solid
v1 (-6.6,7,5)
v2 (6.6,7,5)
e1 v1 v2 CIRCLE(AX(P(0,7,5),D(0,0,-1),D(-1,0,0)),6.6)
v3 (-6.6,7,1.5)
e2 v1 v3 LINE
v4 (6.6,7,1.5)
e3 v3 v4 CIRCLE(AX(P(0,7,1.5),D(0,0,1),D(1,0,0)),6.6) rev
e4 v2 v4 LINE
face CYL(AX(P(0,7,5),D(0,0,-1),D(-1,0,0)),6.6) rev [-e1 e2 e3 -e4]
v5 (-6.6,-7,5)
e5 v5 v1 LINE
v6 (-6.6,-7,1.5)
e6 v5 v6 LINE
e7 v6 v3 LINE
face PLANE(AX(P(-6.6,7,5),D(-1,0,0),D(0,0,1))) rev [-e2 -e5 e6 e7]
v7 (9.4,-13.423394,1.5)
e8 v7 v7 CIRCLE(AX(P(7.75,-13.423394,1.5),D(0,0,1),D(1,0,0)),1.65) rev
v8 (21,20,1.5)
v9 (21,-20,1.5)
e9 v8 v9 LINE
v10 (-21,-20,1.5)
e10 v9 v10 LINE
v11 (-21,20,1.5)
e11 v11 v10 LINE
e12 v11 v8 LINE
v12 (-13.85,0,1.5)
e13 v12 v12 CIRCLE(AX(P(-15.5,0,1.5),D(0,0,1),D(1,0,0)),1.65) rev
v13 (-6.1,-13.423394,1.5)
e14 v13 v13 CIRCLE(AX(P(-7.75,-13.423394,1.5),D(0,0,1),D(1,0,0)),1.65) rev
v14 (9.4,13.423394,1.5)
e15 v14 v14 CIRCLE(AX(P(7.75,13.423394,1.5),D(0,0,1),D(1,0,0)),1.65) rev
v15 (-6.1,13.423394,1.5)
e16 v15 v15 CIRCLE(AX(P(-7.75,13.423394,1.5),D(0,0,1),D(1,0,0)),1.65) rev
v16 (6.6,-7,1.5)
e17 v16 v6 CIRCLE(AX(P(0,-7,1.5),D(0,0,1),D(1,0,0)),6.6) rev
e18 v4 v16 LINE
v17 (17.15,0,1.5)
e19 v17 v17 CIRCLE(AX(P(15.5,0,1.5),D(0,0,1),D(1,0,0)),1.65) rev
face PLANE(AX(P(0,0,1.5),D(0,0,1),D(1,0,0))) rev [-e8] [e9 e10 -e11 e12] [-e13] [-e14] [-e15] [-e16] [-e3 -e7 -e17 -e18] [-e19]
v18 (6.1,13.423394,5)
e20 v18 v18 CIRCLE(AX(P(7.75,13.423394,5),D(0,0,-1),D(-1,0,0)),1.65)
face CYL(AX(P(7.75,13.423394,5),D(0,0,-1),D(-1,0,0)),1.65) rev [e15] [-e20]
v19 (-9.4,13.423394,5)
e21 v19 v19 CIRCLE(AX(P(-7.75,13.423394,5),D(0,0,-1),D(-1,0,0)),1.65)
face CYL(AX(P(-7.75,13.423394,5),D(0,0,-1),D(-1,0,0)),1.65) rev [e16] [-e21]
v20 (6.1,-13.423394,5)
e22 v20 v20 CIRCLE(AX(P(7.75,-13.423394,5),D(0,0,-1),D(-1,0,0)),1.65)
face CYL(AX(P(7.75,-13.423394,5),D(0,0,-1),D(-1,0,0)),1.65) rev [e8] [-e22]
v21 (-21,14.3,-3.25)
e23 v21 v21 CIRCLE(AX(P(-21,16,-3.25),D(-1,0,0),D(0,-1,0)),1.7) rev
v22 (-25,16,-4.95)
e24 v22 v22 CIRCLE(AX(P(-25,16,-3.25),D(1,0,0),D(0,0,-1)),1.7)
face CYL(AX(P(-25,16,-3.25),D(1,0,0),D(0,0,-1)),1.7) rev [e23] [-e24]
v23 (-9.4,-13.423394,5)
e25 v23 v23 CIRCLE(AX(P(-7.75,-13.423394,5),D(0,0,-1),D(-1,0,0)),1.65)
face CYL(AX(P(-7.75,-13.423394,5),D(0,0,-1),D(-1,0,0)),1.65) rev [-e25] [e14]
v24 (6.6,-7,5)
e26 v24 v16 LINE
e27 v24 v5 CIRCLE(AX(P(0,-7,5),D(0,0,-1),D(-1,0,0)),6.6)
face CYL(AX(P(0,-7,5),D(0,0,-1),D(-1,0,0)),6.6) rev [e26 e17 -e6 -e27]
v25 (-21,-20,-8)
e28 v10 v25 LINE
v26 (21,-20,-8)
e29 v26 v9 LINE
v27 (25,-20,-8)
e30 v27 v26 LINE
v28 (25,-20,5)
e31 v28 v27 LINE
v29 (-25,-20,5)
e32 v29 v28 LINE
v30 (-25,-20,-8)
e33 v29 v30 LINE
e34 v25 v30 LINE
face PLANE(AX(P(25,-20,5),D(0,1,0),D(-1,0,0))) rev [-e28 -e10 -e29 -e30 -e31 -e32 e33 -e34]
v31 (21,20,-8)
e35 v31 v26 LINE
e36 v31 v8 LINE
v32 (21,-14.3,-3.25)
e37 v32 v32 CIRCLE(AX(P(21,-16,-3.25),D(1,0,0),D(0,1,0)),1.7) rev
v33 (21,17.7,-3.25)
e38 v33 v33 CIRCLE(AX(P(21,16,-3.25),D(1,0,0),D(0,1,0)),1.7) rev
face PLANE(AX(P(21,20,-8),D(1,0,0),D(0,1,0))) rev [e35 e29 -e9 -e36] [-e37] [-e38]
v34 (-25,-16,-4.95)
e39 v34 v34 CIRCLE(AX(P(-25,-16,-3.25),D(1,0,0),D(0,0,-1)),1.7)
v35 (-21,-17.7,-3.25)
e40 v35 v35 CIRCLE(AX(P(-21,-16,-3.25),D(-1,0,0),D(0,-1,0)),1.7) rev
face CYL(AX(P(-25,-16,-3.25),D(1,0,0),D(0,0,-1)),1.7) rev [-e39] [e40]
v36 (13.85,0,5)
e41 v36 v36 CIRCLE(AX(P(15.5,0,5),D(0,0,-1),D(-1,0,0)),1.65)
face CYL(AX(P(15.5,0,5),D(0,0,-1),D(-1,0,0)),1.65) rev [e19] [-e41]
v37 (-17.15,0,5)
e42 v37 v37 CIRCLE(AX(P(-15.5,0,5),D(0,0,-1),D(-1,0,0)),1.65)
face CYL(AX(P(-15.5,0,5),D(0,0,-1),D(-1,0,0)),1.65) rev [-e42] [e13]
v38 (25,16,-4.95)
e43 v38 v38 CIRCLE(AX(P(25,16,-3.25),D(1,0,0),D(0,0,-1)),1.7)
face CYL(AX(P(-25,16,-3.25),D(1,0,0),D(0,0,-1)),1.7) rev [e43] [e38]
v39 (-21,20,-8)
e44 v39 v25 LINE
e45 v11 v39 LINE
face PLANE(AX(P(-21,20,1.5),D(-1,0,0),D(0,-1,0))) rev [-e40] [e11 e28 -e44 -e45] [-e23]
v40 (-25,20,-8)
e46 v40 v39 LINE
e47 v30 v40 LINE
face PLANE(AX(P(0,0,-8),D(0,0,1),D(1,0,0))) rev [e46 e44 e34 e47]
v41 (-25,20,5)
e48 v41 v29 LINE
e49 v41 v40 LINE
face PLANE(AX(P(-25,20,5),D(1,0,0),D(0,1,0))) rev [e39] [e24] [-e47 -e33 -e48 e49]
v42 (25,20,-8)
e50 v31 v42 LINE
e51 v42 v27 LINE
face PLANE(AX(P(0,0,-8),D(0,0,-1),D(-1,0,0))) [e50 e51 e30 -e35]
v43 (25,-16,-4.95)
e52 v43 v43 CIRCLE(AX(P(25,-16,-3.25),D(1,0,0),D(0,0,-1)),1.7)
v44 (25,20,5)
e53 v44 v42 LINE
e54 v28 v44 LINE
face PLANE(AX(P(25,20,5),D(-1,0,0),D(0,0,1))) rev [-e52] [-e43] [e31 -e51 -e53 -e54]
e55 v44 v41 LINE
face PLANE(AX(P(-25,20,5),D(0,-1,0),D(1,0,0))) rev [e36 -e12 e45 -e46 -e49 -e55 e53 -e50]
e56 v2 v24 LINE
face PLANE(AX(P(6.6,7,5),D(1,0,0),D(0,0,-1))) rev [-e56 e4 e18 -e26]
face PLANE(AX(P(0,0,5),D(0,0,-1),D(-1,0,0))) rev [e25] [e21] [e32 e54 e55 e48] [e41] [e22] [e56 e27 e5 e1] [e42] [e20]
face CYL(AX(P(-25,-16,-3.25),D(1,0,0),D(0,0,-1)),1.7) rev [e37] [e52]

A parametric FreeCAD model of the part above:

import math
import FreeCAD as App
import Part
import Sketcher
from FreeCAD import Vector
Q = App.Units.Quantity

doc = App.newDocument("Part")
body = doc.addObject("PartDesign::Body", "Body")

sketch1 = body.newObject("Sketcher::SketchObject", "Sketch")
sketch1.AttachmentSupport = (doc.getObject("XY_Plane"), [""])
sketch1.MapMode = "FlatFace"
sketch1.addGeometry([
    Part.LineSegment(Vector(-25, 20, 0), Vector(-25, -20, 0)),
    Part.LineSegment(Vector(-25, -20, 0), Vector(25, -20, 0)),
    Part.LineSegment(Vector(25, -20, 0), Vector(25, 20, 0)),
    Part.LineSegment(Vector(25, 20, 0), Vector(-25, 20, 0)),
], False)
sketch1.addConstraint([
    Sketcher.Constraint("Coincident", 0, 2, 1, 1),
    Sketcher.Constraint("Coincident", 1, 2, 2, 1),
    Sketcher.Constraint("Coincident", 2, 2, 3, 1),
    Sketcher.Constraint("Coincident", 3, 2, 0, 1),
    Sketcher.Constraint("Vertical", 0),
    Sketcher.Constraint("Horizontal", 1),
    Sketcher.Constraint("Vertical", 2),
    Sketcher.Constraint("Horizontal", 3),
    Sketcher.Constraint("Symmetric", 0, 2, 2, 2, -1, 1),
    Sketcher.Constraint("DistanceX", 1, 1, 1, 2, Q("50 mm")),
    Sketcher.Constraint("DistanceY", 0, 2, 0, 1, Q("40 mm")),
])
pad1 = body.newObject("PartDesign::Pad", "Pad")
pad1.Profile = sketch1
pad1.Length = 5

sketch2 = body.newObject("Sketcher::SketchObject", "Sketch001")
sketch2.AttachmentSupport = (doc.getObject("XY_Plane"), [""])
sketch2.MapMode = "FlatFace"
sketch2.addGeometry([
    Part.LineSegment(Vector(25, 20, 0), Vector(25, -20, 0)),
    Part.LineSegment(Vector(25, -20, 0), Vector(19, -20, 0)),
    Part.LineSegment(Vector(19, -20, 0), Vector(19, 20, 0)),
    Part.LineSegment(Vector(19, 20, 0), Vector(25, 20, 0)),
    Part.LineSegment(Vector(-19, 20, 0), Vector(-19, -20, 0)),
    Part.LineSegment(Vector(-19, -20, 0), Vector(-25, -20, 0)),
    Part.LineSegment(Vector(-25, -20, 0), Vector(-25, 20, 0)),
    Part.LineSegment(Vector(-25, 20, 0), Vector(-19, 20, 0)),
], False)
sketch2.addConstraint([
    Sketcher.Constraint("Coincident", 0, 2, 1, 1),
    Sketcher.Constraint("Coincident", 1, 2, 2, 1),
    Sketcher.Constraint("Coincident", 2, 2, 3, 1),
    Sketcher.Constraint("Coincident", 3, 2, 0, 1),
    Sketcher.Constraint("Coincident", 4, 2, 5, 1),
    Sketcher.Constraint("Coincident", 5, 2, 6, 1),
    Sketcher.Constraint("Coincident", 6, 2, 7, 1),
    Sketcher.Constraint("Coincident", 7, 2, 4, 1),
    Sketcher.Constraint("Vertical", 0),
    Sketcher.Constraint("Horizontal", 1),
    Sketcher.Constraint("Vertical", 2),
    Sketcher.Constraint("Horizontal", 3),
    Sketcher.Constraint("Vertical", 4),
    Sketcher.Constraint("Horizontal", 5),
    Sketcher.Constraint("Vertical", 6),
    Sketcher.Constraint("Horizontal", 7),
    Sketcher.Constraint("Symmetric", 2, 2, 4, 2, -1, 1),
    Sketcher.Constraint("Symmetric", 0, 2, 6, 2, -1, 1),
    Sketcher.Constraint("Horizontal", 1, 2, 4, 2),
    Sketcher.Constraint("DistanceX", 1, 2, 1, 1, Q("6 mm")),
    Sketcher.Constraint("DistanceY", 0, 2, 0, 1, Q("40 mm")),
    Sketcher.Constraint("DistanceX", -1, 1, 0, 2, Q("25 mm")),
])
pad2 = body.newObject("PartDesign::Pad", "Pad001")
pad2.Profile = sketch2
pad2.Length = 8
pad2.Reversed = True

sketch3 = body.newObject("Sketcher::SketchObject", "Sketch002")
sketch3.AttachmentSupport = (doc.getObject("XY_Plane"), [""])
sketch3.MapMode = "FlatFace"
sketch3.addGeometry([
    Part.Circle(Vector(15.5, 0, 0), Vector(0, 0, 1), 1.65),
    Part.Circle(Vector(7.75, 13.423394, 0), Vector(0, 0, 1), 1.65),
    Part.Circle(Vector(-7.75, 13.423394, 0), Vector(0, 0, 1), 1.65),
    Part.Circle(Vector(-15.5, 0, 0), Vector(0, 0, 1), 1.65),
    Part.Circle(Vector(-7.75, -13.423394, 0), Vector(0, 0, 1), 1.65),
    Part.Circle(Vector(7.75, -13.423394, 0), Vector(0, 0, 1), 1.65),
    Part.LineSegment(Vector(6.6, 7, 0), Vector(6.6, -7, 0)),
    Part.ArcOfCircle(Part.Circle(Vector(0, -7, 0), Vector(0, 0, 1), 6.6), math.radians(180), math.radians(360)),
    Part.LineSegment(Vector(-6.6, -7, 0), Vector(-6.6, 7, 0)),
    Part.ArcOfCircle(Part.Circle(Vector(0, 7, 0), Vector(0, 0, 1), 6.6), math.radians(0), math.radians(180)),
], False)
sketch3.addConstraint([
    Sketcher.Constraint("Tangent", 6, 2, 7, 2),
    Sketcher.Constraint("Tangent", 7, 1, 8, 1),
    Sketcher.Constraint("Tangent", 8, 2, 9, 2),
    Sketcher.Constraint("Tangent", 9, 1, 6, 1),
    Sketcher.Constraint("Vertical", 6),
    Sketcher.Constraint("Vertical", 8),
    Sketcher.Constraint("Equal", 0, 1),
    Sketcher.Constraint("Equal", 1, 2),
    Sketcher.Constraint("Equal", 2, 3),
    Sketcher.Constraint("Equal", 3, 4),
    Sketcher.Constraint("Equal", 4, 5),
    Sketcher.Constraint("Symmetric", 0, 3, 3, 3, -1, 1),
    Sketcher.Constraint("Symmetric", 1, 3, 4, 3, -1, 1),
    Sketcher.Constraint("Symmetric", 2, 3, 5, 3, -1, 1),
    Sketcher.Constraint("Symmetric", 7, 3, 9, 3, -1, 1),
    Sketcher.Constraint("Symmetric", 1, 3, 2, 3, -2),
    Sketcher.Constraint("PointOnObject", 0, 3, -1),
    Sketcher.Constraint("Diameter", 0, Q("3.3 mm")),
    Sketcher.Constraint("Radius", 7, Q("6.6 mm")),
    Sketcher.Constraint("DistanceY", 6, 2, 6, 1, Q("14 mm")),
    Sketcher.Constraint("DistanceX", 3, 3, 0, 3, Q("31 mm")),
    Sketcher.Constraint("DistanceX", 2, 3, 1, 3, Q("15.5 mm")),
    Sketcher.Constraint("DistanceY", -1, 1, 1, 3, Q("13.423394 mm")),
])
pocket1 = body.newObject("PartDesign::Pocket", "Pocket")
pocket1.Profile = sketch3
pocket1.Type = "ThroughAll"
pocket1.Reversed = True

sketch4 = body.newObject("Sketcher::SketchObject", "Sketch003")
sketch4.AttachmentSupport = (doc.getObject("XY_Plane"), [""])
sketch4.MapMode = "FlatFace"
sketch4.addGeometry([
    Part.LineSegment(Vector(19, 20, 0), Vector(19, -20, 0)),
    Part.LineSegment(Vector(19, -20, 0), Vector(-19, -20, 0)),
    Part.LineSegment(Vector(-19, -20, 0), Vector(-19, 20, 0)),
    Part.LineSegment(Vector(-19, 20, 0), Vector(19, 20, 0)),
], False)
sketch4.addConstraint([
    Sketcher.Constraint("Coincident", 0, 2, 1, 1),
    Sketcher.Constraint("Coincident", 1, 2, 2, 1),
    Sketcher.Constraint("Coincident", 2, 2, 3, 1),
    Sketcher.Constraint("Coincident", 3, 2, 0, 1),
    Sketcher.Constraint("Vertical", 0),
    Sketcher.Constraint("Horizontal", 1),
    Sketcher.Constraint("Vertical", 2),
    Sketcher.Constraint("Horizontal", 3),
    Sketcher.Constraint("Symmetric", 0, 2, 2, 2, -1, 1),
    Sketcher.Constraint("DistanceX", 1, 2, 1, 1, Q("38 mm")),
    Sketcher.Constraint("DistanceY", 0, 2, 0, 1, Q("40 mm")),
])
pocket2 = body.newObject("PartDesign::Pocket", "Pocket001")
pocket2.Profile = sketch4
pocket2.Length = 1.5
pocket2.Reversed = True

sketch5 = body.newObject("Sketcher::SketchObject", "Sketch004")
sketch5.AttachmentSupport = (doc.getObject("YZ_Plane"), [""])
sketch5.MapMode = "FlatFace"
sketch5.AttachmentOffset = App.Placement(Vector(0, 0, -19), App.Rotation())
sketch5.addGeometry([
    Part.Circle(Vector(16, -3.25, 0), Vector(0, 0, 1), 1.7),
    Part.Circle(Vector(-16, -3.25, 0), Vector(0, 0, 1), 1.7),
], False)
sketch5.addConstraint([
    Sketcher.Constraint("Equal", 0, 1),
    Sketcher.Constraint("Symmetric", 0, 3, 1, 3, -2),
    Sketcher.Constraint("Diameter", 0, Q("3.4 mm")),
    Sketcher.Constraint("DistanceX", -1, 1, 0, 3, Q("16 mm")),
    Sketcher.Constraint("DistanceY", 0, 3, -1, 1, Q("3.25 mm")),
])
pocket3 = body.newObject("PartDesign::Pocket", "Pocket002")
pocket3.Profile = sketch5
pocket3.Type = "ThroughAll"
pocket3.Midplane = True

sketch6 = body.newObject("Sketcher::SketchObject", "Sketch005")
sketch6.AttachmentSupport = (doc.getObject("XZ_Plane"), [""])
sketch6.MapMode = "FlatFace"
sketch6.AttachmentOffset = App.Placement(Vector(0, 0, 20), App.Rotation())
sketch6.addGeometry([
    Part.LineSegment(Vector(-21, 1.5, 0), Vector(-21, -8, 0)),
    Part.LineSegment(Vector(-21, -8, 0), Vector(21, -8, 0)),
    Part.LineSegment(Vector(21, -8, 0), Vector(21, 1.5, 0)),
    Part.LineSegment(Vector(21, 1.5, 0), Vector(-21, 1.5, 0)),
], False)
sketch6.addConstraint([
    Sketcher.Constraint("Coincident", 0, 2, 1, 1),
    Sketcher.Constraint("Coincident", 1, 2, 2, 1),
    Sketcher.Constraint("Coincident", 2, 2, 3, 1),
    Sketcher.Constraint("Coincident", 3, 2, 0, 1),
    Sketcher.Constraint("Vertical", 0),
    Sketcher.Constraint("Horizontal", 1),
    Sketcher.Constraint("Vertical", 2),
    Sketcher.Constraint("Horizontal", 3),
    Sketcher.Constraint("DistanceX", 1, 1, 1, 2, Q("42 mm")),
    Sketcher.Constraint("DistanceY", 0, 2, 0, 1, Q("9.5 mm")),
    Sketcher.Constraint("DistanceX", 0, 2, -1, 1, Q("21 mm")),
    Sketcher.Constraint("DistanceY", 0, 2, -1, 1, Q("8 mm")),
])
pocket4 = body.newObject("PartDesign::Pocket", "Pocket003")
pocket4.Profile = sketch6
pocket4.Type = "ThroughAll"

doc.recompute()
